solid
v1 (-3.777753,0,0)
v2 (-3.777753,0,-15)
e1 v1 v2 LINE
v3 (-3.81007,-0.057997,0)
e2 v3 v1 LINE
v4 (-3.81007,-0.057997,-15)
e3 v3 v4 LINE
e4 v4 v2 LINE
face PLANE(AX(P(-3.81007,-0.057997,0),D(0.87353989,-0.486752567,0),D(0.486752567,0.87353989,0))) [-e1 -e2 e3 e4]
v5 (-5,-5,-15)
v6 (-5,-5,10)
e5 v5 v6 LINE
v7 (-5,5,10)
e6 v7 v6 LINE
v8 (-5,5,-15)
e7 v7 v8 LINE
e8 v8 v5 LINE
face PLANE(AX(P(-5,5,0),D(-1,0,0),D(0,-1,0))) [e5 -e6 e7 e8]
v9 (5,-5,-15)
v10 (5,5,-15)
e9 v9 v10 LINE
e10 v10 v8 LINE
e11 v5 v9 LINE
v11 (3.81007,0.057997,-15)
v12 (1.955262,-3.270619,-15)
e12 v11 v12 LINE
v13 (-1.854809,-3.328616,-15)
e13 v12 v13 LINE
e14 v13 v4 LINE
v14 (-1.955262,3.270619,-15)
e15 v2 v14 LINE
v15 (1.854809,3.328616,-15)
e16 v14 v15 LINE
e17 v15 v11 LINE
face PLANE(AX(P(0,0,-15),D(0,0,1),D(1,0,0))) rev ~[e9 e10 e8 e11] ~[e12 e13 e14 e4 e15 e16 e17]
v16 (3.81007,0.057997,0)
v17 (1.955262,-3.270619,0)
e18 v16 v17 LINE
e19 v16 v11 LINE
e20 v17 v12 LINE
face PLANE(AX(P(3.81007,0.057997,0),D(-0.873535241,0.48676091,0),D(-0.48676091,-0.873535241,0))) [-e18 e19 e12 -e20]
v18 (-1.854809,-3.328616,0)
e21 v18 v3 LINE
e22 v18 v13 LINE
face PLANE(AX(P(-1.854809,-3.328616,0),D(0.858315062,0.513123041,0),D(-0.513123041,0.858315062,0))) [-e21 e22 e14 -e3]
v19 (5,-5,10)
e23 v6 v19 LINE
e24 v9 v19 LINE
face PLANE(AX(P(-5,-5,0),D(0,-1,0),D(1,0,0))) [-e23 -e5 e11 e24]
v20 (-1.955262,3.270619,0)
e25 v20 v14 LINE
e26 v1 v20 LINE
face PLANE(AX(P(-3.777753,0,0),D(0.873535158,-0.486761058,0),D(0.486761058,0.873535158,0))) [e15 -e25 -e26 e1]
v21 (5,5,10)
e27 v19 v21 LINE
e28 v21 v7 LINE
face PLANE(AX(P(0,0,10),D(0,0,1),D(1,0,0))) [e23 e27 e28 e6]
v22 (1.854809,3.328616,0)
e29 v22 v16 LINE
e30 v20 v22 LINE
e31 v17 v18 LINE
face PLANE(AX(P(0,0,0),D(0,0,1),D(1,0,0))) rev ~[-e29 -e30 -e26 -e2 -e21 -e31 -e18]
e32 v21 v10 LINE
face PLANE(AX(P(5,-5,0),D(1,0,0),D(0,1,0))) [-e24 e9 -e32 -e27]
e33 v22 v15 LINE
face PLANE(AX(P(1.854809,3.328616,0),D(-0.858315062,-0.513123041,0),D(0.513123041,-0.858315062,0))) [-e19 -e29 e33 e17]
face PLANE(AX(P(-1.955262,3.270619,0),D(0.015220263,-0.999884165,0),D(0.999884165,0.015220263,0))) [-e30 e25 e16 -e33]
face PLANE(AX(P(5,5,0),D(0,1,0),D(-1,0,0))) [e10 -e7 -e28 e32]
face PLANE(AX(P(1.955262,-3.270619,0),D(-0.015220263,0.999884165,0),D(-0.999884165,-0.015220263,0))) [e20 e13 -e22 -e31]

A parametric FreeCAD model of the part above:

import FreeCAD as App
import Part
import Sketcher
from FreeCAD import Vector
Q = App.Units.Quantity


def add_polygon(sketch, points):
    """Adds a closed chain of lines whose ends are joined by coincident constraints."""
    first, n = sketch.GeometryCount, len(points)
    for a, b in zip(points, points[1:] + points[:1]):
        sketch.addGeometry(Part.LineSegment(App.Vector(*a, 0), App.Vector(*b, 0)), False)
    for i in range(n):
        sketch.addConstraint(Sketcher.Constraint("Coincident", first + i, 2, first + (i + 1) % n, 1))

doc = App.newDocument("Part")
body = doc.addObject("PartDesign::Body", "Body")

sketch1 = body.newObject("Sketcher::SketchObject", "Sketch")
sketch1.AttachmentSupport = (doc.getObject("XY_Plane"), [""])
sketch1.MapMode = "FlatFace"
add_polygon(sketch1, [(-5, 5), (-5, -5), (5, -5), (5, 5)])
sketch1.addConstraint([
    Sketcher.Constraint("Vertical", 0),
    Sketcher.Constraint("Horizontal", 1),
    Sketcher.Constraint("Vertical", 2),
    Sketcher.Constraint("Horizontal", 3),
    Sketcher.Constraint("Symmetric", 0, 2, 2, 2, -1, 1),
    Sketcher.Constraint("Equal", 3, 0),
    Sketcher.Constraint("DistanceX", 1, 1, 1, 2, Q("10 mm")),
])
pad1 = body.newObject("PartDesign::Pad", "Pad")
pad1.Profile = sketch1
pad1.Length = 10

sketch2 = body.newObject("Sketcher::SketchObject", "Sketch001")
sketch2.AttachmentSupport = (doc.getObject("XY_Plane"), [""])
sketch2.MapMode = "FlatFace"
add_polygon(sketch2, [(-5, 5), (-5, -5), (5, -5), (5, 5)])
add_polygon(sketch2, [(-3.78, 0), (-1.96, 3.27), (1.85, 3.33), (3.81, 0.06), (1.96, -3.27), (-1.85, -3.33), (-3.81, -0.06)])
sketch2.addConstraint([
    Sketcher.Constraint("Vertical", 0),
    Sketcher.Constraint("Horizontal", 1),
    Sketcher.Constraint("Vertical", 2),
    Sketcher.Constraint("Horizontal", 3),
    Sketcher.Constraint("Symmetric", 0, 2, 2, 2, -1, 1),
    Sketcher.Constraint("Symmetric", 4, 2, 7, 2, -1, 1),
    Sketcher.Constraint("Symmetric", 5, 2, 8, 2, -1, 1),
    Sketcher.Constraint("Symmetric", 6, 2, 9, 2, -1, 1),
    Sketcher.Constraint("PointOnObject", 10, 2, -1),
    Sketcher.Constraint("Parallel", 4, 7),
    Sketcher.Constraint("Equal", 3, 0),
    Sketcher.Constraint("Equal", 5, 6),
    Sketcher.Constraint("Equal", 6, 7),
    Sketcher.Constraint("DistanceX", 1, 1, 1, 2, Q("10 mm")),
    Sketcher.Constraint("Distance", 4, Q("3.744118 mm")),
    Sketcher.Constraint("Distance", 6, Q("3.810511 mm")),
    Sketcher.Constraint("DistanceY", -1, 1, 4, 2, Q("3.270619 mm")),
    Sketcher.Constraint("DistanceX", -1, 1, 5, 2, Q("1.854809 mm")),
])
pad2 = body.newObject("PartDesign::Pad", "Pad001")
pad2.Profile = sketch2
pad2.Length = 15
pad2.Reversed = True

doc.recompute()
